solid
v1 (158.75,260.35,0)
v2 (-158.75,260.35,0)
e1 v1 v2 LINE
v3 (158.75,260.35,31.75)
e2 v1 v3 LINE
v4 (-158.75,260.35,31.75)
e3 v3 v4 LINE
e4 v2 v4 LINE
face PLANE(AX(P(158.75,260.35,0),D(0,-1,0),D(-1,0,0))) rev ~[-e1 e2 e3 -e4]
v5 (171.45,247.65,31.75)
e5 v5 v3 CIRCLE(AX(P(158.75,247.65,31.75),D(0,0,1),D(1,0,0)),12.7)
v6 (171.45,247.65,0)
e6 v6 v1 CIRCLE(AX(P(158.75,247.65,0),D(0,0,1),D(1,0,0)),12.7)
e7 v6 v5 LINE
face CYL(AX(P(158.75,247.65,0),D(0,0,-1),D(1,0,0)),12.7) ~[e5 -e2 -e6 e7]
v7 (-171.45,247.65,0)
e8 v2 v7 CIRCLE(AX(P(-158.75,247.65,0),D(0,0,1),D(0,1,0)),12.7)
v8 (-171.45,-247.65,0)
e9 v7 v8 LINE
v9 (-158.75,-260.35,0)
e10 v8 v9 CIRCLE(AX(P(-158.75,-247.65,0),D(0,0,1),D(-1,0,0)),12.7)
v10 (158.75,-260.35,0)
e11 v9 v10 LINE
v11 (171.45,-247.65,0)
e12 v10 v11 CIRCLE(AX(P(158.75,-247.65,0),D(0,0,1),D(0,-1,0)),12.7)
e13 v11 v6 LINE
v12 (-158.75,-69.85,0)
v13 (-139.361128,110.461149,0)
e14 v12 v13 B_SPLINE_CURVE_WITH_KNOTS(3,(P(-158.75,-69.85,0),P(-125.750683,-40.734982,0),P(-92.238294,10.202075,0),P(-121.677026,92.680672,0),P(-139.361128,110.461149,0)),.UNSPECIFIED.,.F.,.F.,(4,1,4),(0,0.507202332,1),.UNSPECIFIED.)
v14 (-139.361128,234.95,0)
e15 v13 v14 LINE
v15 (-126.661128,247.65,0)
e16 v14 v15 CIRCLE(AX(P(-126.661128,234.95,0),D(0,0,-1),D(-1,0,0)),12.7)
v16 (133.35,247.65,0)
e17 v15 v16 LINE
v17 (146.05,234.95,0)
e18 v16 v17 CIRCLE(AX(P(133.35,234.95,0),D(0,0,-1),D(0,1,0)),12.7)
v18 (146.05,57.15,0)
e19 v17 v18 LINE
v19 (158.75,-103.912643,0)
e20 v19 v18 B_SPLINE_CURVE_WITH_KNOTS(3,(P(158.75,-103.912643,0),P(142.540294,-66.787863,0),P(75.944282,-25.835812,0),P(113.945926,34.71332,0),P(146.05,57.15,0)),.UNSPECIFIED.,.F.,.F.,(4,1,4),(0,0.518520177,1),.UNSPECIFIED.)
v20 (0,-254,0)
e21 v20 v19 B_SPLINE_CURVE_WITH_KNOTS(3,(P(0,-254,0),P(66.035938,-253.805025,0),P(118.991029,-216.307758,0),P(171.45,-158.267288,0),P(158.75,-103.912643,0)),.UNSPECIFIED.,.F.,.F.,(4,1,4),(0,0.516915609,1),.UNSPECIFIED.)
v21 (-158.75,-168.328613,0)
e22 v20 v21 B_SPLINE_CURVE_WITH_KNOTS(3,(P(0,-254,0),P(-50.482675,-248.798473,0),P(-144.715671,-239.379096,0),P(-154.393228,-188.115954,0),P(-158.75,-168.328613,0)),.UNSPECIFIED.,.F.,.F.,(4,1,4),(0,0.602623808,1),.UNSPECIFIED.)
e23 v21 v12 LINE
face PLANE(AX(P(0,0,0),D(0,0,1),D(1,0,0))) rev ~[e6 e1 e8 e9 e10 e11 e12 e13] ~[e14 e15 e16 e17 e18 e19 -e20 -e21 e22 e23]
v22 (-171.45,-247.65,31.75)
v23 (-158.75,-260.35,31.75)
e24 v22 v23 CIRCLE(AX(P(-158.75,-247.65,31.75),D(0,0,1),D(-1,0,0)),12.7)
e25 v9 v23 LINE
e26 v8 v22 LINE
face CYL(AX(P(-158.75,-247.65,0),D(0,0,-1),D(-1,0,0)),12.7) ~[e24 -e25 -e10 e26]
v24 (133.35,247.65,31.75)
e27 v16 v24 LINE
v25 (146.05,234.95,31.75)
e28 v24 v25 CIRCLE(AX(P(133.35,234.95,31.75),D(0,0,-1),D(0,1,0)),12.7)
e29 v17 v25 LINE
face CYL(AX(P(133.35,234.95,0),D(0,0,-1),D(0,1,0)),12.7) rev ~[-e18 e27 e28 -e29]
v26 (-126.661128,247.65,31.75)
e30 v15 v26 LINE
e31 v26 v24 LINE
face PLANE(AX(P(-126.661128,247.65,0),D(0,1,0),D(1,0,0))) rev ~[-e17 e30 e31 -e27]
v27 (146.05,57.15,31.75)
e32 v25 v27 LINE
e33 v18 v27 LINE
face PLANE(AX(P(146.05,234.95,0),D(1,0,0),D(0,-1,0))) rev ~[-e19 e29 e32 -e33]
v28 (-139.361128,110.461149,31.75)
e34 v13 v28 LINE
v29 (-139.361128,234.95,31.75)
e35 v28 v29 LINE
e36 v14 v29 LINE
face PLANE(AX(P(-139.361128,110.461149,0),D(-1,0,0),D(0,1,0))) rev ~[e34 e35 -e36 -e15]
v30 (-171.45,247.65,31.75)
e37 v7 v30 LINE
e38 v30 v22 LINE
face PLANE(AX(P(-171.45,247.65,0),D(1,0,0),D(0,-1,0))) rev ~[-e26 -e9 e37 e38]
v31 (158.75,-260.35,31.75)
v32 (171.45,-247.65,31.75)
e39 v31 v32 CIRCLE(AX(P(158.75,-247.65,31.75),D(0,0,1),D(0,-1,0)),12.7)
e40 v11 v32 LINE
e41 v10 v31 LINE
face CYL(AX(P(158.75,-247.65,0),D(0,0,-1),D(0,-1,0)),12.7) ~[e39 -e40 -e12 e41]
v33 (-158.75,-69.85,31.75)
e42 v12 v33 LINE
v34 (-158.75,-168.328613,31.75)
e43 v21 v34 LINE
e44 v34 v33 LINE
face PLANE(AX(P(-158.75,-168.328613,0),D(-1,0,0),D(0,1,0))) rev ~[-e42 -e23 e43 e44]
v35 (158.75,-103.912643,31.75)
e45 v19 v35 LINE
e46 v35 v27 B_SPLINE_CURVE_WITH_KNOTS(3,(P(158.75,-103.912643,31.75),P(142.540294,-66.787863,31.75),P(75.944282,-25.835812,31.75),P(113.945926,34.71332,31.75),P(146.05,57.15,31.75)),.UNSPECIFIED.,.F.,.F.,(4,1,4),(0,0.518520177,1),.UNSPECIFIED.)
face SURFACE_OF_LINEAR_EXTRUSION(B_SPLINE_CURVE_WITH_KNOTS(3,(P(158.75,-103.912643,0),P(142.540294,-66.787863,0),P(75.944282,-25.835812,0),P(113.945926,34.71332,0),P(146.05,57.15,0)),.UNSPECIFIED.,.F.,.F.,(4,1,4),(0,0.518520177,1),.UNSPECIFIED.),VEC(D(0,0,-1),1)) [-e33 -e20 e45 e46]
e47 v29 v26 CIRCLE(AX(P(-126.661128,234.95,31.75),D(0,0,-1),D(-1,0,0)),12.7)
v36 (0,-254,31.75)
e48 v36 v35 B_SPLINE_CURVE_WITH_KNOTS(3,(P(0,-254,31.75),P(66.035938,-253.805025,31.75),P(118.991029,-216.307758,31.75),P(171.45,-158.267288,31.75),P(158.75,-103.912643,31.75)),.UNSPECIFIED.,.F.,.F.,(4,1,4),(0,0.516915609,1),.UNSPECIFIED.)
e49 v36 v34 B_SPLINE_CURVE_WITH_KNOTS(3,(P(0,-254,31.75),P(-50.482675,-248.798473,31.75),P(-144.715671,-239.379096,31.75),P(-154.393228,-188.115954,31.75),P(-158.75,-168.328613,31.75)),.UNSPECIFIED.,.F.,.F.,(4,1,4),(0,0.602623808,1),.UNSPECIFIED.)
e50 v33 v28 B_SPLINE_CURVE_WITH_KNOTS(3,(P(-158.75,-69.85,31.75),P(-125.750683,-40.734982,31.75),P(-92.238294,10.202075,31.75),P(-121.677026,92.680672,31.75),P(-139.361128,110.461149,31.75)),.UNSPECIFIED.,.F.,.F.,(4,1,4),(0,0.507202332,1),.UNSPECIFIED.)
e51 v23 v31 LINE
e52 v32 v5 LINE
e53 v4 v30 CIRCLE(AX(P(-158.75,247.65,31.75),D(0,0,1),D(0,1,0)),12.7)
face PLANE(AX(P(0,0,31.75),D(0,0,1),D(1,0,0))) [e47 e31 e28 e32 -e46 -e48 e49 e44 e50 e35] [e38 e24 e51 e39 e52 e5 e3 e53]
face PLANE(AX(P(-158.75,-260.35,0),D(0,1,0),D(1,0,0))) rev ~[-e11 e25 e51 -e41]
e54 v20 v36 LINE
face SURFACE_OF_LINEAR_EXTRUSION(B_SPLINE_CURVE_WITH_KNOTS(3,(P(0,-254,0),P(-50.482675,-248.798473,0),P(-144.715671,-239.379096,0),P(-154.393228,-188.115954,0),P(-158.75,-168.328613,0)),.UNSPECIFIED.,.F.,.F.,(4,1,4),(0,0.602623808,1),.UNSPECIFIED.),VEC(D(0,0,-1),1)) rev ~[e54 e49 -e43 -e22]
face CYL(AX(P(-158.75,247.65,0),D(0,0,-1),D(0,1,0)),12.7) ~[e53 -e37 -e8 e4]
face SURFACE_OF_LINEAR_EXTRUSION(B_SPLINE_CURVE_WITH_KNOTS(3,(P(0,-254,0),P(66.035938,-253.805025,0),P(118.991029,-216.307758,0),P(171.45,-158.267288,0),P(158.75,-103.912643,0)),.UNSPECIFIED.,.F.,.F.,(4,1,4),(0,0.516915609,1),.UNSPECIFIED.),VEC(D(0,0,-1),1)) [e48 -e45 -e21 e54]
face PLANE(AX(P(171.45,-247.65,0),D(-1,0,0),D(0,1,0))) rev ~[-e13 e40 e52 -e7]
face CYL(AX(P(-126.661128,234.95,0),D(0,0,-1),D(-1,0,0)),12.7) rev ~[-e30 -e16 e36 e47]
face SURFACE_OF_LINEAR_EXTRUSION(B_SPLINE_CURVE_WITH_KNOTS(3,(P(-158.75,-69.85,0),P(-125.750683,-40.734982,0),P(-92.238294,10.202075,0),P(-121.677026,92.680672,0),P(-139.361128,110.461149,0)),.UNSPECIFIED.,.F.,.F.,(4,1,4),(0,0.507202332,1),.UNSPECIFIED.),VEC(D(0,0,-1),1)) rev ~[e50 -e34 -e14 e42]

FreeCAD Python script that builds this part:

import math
import FreeCAD as App
import Part
import Sketcher

V = App.Vector
Q = App.Units.Quantity

doc = App.newDocument("Part")
body = doc.addObject("PartDesign::Body", "Body")

sketch1 = body.newObject("Sketcher::SketchObject", "Sketch")
sketch1.AttachmentSupport = (doc.getObject("XY_Plane"), [""])
sketch1.MapMode = "FlatFace"
sketch1.addGeometry(Part.LineSegment(V(158.75, 260.35, 0), V(-158.75, 260.35, 0)), False)
sketch1.addGeometry(Part.ArcOfCircle(Part.Circle(V(-158.75, 247.65, 0), V(0, 0, 1), 12.7), math.radians(90), math.radians(180)), False)
sketch1.addGeometry(Part.LineSegment(V(-171.45, 247.65, 0), V(-171.45, -247.65, 0)), False)
sketch1.addGeometry(Part.ArcOfCircle(Part.Circle(V(-158.75, -247.65, 0), V(0, 0, 1), 12.7), math.radians(180), math.radians(270)), False)
sketch1.addGeometry(Part.LineSegment(V(-158.75, -260.35, 0), V(158.75, -260.35, 0)), False)
sketch1.addGeometry(Part.ArcOfCircle(Part.Circle(V(158.75, -247.65, 0), V(0, 0, 1), 12.7), math.radians(-90), math.radians(0)), False)
sketch1.addGeometry(Part.LineSegment(V(171.45, -247.65, 0), V(171.45, 247.65, 0)), False)
sketch1.addGeometry(Part.ArcOfCircle(Part.Circle(V(158.75, 247.65, 0), V(0, 0, 1), 12.7), math.radians(0), math.radians(90)), False)
sketch1.addGeometry(Part.BSplineCurve([V(0, -254, 0), V(-50.482675, -248.798473, 0), V(-144.715671, -239.379096, 0), V(-154.393228, -188.115954, 0), V(-158.75, -168.328613, 0)], [4, 1, 4], [0, 0.602623808, 1], False, 3, [1, 1, 1, 1, 1], False), False)
sketch1.addGeometry(Part.LineSegment(V(-158.75, -168.328613, 0), V(-158.75, -69.85, 0)), False)
sketch1.addGeometry(Part.BSplineCurve([V(-158.75, -69.85, 0), V(-125.750683, -40.734982, 0), V(-92.238294, 10.202075, 0), V(-121.677026, 92.680672, 0), V(-139.361128, 110.461149, 0)], [4, 1, 4], [0, 0.507202332, 1], False, 3, [1, 1, 1, 1, 1], False), False)
sketch1.addGeometry(Part.LineSegment(V(-139.361128, 110.461149, 0), V(-139.361128, 234.95, 0)), False)
sketch1.addGeometry(Part.ArcOfCircle(Part.Circle(V(-126.661128, 234.95, 0), V(0, 0, 1), 12.7), math.radians(90), math.radians(180)), False)
sketch1.addGeometry(Part.LineSegment(V(-126.661128, 247.65, 0), V(133.35, 247.65, 0)), False)
sketch1.addGeometry(Part.ArcOfCircle(Part.Circle(V(133.35, 234.95, 0), V(0, 0, 1), 12.7), math.radians(0), math.radians(90)), False)
sketch1.addGeometry(Part.LineSegment(V(146.05, 234.95, 0), V(146.05, 57.15, 0)), False)
sketch1.addGeometry(Part.BSplineCurve([V(158.75, -103.912643, 0), V(142.540294, -66.787863, 0), V(75.944282, -25.835812, 0), V(113.945926, 34.71332, 0), V(146.05, 57.15, 0)], [4, 1, 4], [0, 0.518520177, 1], False, 3, [1, 1, 1, 1, 1], False), False)
sketch1.addGeometry(Part.BSplineCurve([V(0, -254, 0), V(66.035938, -253.805025, 0), V(118.991029, -216.307758, 0), V(171.45, -158.267288, 0), V(158.75, -103.912643, 0)], [4, 1, 4], [0, 0.516915609, 1], False, 3, [1, 1, 1, 1, 1], False), False)
sketch1.addConstraint(Sketcher.Constraint("Block", 8))
sketch1.addConstraint(Sketcher.Constraint("Block", 10))
sketch1.addConstraint(Sketcher.Constraint("Block", 16))
sketch1.addConstraint(Sketcher.Constraint("Block", 17))
sketch1.addConstraint(Sketcher.Constraint("Tangent", 0, 2, 1, 1))
sketch1.addConstraint(Sketcher.Constraint("Tangent", 1, 2, 2, 1))
sketch1.addConstraint(Sketcher.Constraint("Tangent", 2, 2, 3, 1))
sketch1.addConstraint(Sketcher.Constraint("Tangent", 3, 2, 4, 1))
sketch1.addConstraint(Sketcher.Constraint("Tangent", 4, 2, 5, 1))
sketch1.addConstraint(Sketcher.Constraint("Tangent", 5, 2, 6, 1))
sketch1.addConstraint(Sketcher.Constraint("Tangent", 6, 2, 7, 1))
sketch1.addConstraint(Sketcher.Constraint("Tangent", 7, 2, 0, 1))
sketch1.addConstraint(Sketcher.Constraint("Coincident", 8, 2, 9, 1))
sketch1.addConstraint(Sketcher.Constraint("Coincident", 9, 2, 10, 1))
sketch1.addConstraint(Sketcher.Constraint("Coincident", 10, 2, 11, 1))
sketch1.addConstraint(Sketcher.Constraint("Tangent", 11, 2, 12, 2))
sketch1.addConstraint(Sketcher.Constraint("Tangent", 12, 1, 13, 1))
sketch1.addConstraint(Sketcher.Constraint("Tangent", 13, 2, 14, 2))
sketch1.addConstraint(Sketcher.Constraint("Tangent", 14, 1, 15, 1))
sketch1.addConstraint(Sketcher.Constraint("Coincident", 15, 2, 16, 2))
sketch1.addConstraint(Sketcher.Constraint("Horizontal", 0))
sketch1.addConstraint(Sketcher.Constraint("Vertical", 2))
sketch1.addConstraint(Sketcher.Constraint("Horizontal", 4))
sketch1.addConstraint(Sketcher.Constraint("Vertical", 6))
sketch1.addConstraint(Sketcher.Constraint("Vertical", 11))
sketch1.addConstraint(Sketcher.Constraint("Horizontal", 13))
sketch1.addConstraint(Sketcher.Constraint("Vertical", 15))
sketch1.addConstraint(Sketcher.Constraint("Equal", 1, 3))
sketch1.addConstraint(Sketcher.Constraint("Equal", 3, 5))
sketch1.addConstraint(Sketcher.Constraint("Equal", 5, 7))
sketch1.addConstraint(Sketcher.Constraint("Equal", 7, 12))
sketch1.addConstraint(Sketcher.Constraint("Equal", 12, 14))
sketch1.addConstraint(Sketcher.Constraint("Symmetric", 1, 3, 5, 3, -1, 1))
sketch1.addConstraint(Sketcher.Constraint("Horizontal", 6, 2, 12, 1))
sketch1.addConstraint(Sketcher.Constraint("Vertical", 3, 2, 9, 2))
sketch1.addConstraint(Sketcher.Constraint("Radius", 1, Q("0.5 in")))
sketch1.addConstraint(Sketcher.Constraint("DistanceY", 15, 2, 15, 1, Q("7 in")))
pad1 = body.newObject("PartDesign::Pad", "Pad")
pad1.Profile = sketch1
pad1.Length = Q("1.25 in")

doc.recompute()
